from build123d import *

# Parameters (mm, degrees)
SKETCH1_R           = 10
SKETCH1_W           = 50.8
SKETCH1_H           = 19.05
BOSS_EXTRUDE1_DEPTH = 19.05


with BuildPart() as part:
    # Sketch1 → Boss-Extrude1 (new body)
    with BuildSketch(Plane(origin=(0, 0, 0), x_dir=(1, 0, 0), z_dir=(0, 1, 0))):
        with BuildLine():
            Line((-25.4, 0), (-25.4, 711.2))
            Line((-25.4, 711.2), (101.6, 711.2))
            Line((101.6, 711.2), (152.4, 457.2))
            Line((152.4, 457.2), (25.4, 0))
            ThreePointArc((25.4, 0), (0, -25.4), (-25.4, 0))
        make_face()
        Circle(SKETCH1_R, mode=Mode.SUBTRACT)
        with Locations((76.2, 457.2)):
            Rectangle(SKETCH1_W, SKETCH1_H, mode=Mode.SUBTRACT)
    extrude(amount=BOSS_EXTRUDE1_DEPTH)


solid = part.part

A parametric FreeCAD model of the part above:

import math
import FreeCAD as App
import Part
import Sketcher
from FreeCAD import Vector
Q = App.Units.Quantity

doc = App.newDocument("Part")
params = doc.addObject("Spreadsheet::Sheet", "Params")
for row, (alias, value) in enumerate([
    ("sketch1_radius", "1 in"),
    ("sketch1_width", "5 in"),
    ("sketch1_width2", "2 in"),
    ("sketch1_height", "28 in"),
    ("sketch1_height2", "0.75 in"),
    ("pad1_length", "0.75 in"),
], start=1):
    params.set(f"A{row}", alias)
    params.set(f"B{row}", "=" + value)
    params.setAlias(f"B{row}", alias)

body = doc.addObject("PartDesign::Body", "Body")

# Sketch on XZ plane
sketch1 = doc.addObject("Sketcher::SketchObject", "Sketch")
body.addObject(sketch1)
sketch1.AttachmentSupport = (doc.XZ_Plane, [""])
sketch1.MapMode = "FlatFace"
sketch1.addGeometry([
    Part.LineSegment(Vector(-25, -711, 0), Vector(-25, 0, 0)),  # 0
    Part.ArcOfCircle(Part.Circle(Vector(0, 0, 0), Vector(0, 0, 1), 25), math.radians(0), math.radians(180)),  # 1
    Part.LineSegment(Vector(25, 0, 0), Vector(152, -457, 0)),  # 2
    Part.LineSegment(Vector(152, -457, 0), Vector(102, -711, 0)),  # 3
    Part.LineSegment(Vector(102, -711, 0), Vector(-25, -711, 0)),  # 4
    Part.Circle(Vector(0, 0, 0), Vector(0, 0, 1), 10),  # 5
    Part.LineSegment(Vector(51, -448, 0), Vector(51, -467, 0)),  # 6
    Part.LineSegment(Vector(51, -467, 0), Vector(102, -467, 0)),  # 7
    Part.LineSegment(Vector(102, -467, 0), Vector(102, -448, 0)),  # 8
    Part.LineSegment(Vector(102, -448, 0), Vector(51, -448, 0)),  # 9
], False)
sketch1.addConstraint([
    Sketcher.Constraint("Tangent", 0, 2, 1, 2),
    Sketcher.Constraint("Coincident", 1, 1, 2, 1),
    Sketcher.Constraint("Coincident", 2, 2, 3, 1),
    Sketcher.Constraint("Coincident", 3, 2, 4, 1),
    Sketcher.Constraint("Coincident", 4, 2, 0, 1),
    Sketcher.Constraint("Coincident", 6, 2, 7, 1),
    Sketcher.Constraint("Coincident", 7, 2, 8, 1),
    Sketcher.Constraint("Coincident", 8, 2, 9, 1),
    Sketcher.Constraint("Coincident", 9, 2, 6, 1),
    Sketcher.Constraint("Vertical", 0),
    Sketcher.Constraint("Horizontal", 4),
    Sketcher.Constraint("Vertical", 6),
    Sketcher.Constraint("Horizontal", 7),
    Sketcher.Constraint("Vertical", 8),
    Sketcher.Constraint("Horizontal", 9),
    Sketcher.Constraint("Coincident", 1, 3, -1, 1),
    Sketcher.Constraint("Coincident", 5, 3, -1, 1),
    Sketcher.Constraint("PointOnObject", 1, 1, -1),
    Sketcher.Constraint("Vertical", 3, 2, 7, 2),
    Sketcher.Constraint("Radius", 1, Q("1 in")),
    Sketcher.Constraint("DistanceX", 4, 2, 4, 1, Q("5 in")),
    Sketcher.Constraint("DistanceX", 7, 1, 7, 2, Q("2 in")),
    Sketcher.Constraint("DistanceY", 0, 1, 0, 2, Q("28 in")),
    Sketcher.Constraint("DistanceX", -1, 1, 2, 2, Q("6 in")),
    Sketcher.Constraint("DistanceY", 2, 2, -1, 1, Q("18 in")),
    Sketcher.Constraint("DistanceY", 6, 2, 6, 1, Q("0.75 in")),
    Sketcher.Constraint("Diameter", 5, Q("20 mm")),
    Sketcher.Constraint("DistanceY", 6, 2, -1, 1, Q("18.375 in")),
])
sketch1.setExpression("Constraints[19]", "Params.sketch1_radius")
sketch1.setExpression("Constraints[20]", "Params.sketch1_width")
sketch1.setExpression("Constraints[21]", "Params.sketch1_width2")
sketch1.setExpression("Constraints[22]", "Params.sketch1_height")
sketch1.setExpression("Constraints[25]", "Params.sketch1_height2")
pad1 = doc.addObject("PartDesign::Pad", "Pad")
body.addObject(pad1)
pad1.Profile = sketch1
pad1.setExpression("Length", "Params.pad1_length")
pad1.Reversed = True

doc.recompute()
